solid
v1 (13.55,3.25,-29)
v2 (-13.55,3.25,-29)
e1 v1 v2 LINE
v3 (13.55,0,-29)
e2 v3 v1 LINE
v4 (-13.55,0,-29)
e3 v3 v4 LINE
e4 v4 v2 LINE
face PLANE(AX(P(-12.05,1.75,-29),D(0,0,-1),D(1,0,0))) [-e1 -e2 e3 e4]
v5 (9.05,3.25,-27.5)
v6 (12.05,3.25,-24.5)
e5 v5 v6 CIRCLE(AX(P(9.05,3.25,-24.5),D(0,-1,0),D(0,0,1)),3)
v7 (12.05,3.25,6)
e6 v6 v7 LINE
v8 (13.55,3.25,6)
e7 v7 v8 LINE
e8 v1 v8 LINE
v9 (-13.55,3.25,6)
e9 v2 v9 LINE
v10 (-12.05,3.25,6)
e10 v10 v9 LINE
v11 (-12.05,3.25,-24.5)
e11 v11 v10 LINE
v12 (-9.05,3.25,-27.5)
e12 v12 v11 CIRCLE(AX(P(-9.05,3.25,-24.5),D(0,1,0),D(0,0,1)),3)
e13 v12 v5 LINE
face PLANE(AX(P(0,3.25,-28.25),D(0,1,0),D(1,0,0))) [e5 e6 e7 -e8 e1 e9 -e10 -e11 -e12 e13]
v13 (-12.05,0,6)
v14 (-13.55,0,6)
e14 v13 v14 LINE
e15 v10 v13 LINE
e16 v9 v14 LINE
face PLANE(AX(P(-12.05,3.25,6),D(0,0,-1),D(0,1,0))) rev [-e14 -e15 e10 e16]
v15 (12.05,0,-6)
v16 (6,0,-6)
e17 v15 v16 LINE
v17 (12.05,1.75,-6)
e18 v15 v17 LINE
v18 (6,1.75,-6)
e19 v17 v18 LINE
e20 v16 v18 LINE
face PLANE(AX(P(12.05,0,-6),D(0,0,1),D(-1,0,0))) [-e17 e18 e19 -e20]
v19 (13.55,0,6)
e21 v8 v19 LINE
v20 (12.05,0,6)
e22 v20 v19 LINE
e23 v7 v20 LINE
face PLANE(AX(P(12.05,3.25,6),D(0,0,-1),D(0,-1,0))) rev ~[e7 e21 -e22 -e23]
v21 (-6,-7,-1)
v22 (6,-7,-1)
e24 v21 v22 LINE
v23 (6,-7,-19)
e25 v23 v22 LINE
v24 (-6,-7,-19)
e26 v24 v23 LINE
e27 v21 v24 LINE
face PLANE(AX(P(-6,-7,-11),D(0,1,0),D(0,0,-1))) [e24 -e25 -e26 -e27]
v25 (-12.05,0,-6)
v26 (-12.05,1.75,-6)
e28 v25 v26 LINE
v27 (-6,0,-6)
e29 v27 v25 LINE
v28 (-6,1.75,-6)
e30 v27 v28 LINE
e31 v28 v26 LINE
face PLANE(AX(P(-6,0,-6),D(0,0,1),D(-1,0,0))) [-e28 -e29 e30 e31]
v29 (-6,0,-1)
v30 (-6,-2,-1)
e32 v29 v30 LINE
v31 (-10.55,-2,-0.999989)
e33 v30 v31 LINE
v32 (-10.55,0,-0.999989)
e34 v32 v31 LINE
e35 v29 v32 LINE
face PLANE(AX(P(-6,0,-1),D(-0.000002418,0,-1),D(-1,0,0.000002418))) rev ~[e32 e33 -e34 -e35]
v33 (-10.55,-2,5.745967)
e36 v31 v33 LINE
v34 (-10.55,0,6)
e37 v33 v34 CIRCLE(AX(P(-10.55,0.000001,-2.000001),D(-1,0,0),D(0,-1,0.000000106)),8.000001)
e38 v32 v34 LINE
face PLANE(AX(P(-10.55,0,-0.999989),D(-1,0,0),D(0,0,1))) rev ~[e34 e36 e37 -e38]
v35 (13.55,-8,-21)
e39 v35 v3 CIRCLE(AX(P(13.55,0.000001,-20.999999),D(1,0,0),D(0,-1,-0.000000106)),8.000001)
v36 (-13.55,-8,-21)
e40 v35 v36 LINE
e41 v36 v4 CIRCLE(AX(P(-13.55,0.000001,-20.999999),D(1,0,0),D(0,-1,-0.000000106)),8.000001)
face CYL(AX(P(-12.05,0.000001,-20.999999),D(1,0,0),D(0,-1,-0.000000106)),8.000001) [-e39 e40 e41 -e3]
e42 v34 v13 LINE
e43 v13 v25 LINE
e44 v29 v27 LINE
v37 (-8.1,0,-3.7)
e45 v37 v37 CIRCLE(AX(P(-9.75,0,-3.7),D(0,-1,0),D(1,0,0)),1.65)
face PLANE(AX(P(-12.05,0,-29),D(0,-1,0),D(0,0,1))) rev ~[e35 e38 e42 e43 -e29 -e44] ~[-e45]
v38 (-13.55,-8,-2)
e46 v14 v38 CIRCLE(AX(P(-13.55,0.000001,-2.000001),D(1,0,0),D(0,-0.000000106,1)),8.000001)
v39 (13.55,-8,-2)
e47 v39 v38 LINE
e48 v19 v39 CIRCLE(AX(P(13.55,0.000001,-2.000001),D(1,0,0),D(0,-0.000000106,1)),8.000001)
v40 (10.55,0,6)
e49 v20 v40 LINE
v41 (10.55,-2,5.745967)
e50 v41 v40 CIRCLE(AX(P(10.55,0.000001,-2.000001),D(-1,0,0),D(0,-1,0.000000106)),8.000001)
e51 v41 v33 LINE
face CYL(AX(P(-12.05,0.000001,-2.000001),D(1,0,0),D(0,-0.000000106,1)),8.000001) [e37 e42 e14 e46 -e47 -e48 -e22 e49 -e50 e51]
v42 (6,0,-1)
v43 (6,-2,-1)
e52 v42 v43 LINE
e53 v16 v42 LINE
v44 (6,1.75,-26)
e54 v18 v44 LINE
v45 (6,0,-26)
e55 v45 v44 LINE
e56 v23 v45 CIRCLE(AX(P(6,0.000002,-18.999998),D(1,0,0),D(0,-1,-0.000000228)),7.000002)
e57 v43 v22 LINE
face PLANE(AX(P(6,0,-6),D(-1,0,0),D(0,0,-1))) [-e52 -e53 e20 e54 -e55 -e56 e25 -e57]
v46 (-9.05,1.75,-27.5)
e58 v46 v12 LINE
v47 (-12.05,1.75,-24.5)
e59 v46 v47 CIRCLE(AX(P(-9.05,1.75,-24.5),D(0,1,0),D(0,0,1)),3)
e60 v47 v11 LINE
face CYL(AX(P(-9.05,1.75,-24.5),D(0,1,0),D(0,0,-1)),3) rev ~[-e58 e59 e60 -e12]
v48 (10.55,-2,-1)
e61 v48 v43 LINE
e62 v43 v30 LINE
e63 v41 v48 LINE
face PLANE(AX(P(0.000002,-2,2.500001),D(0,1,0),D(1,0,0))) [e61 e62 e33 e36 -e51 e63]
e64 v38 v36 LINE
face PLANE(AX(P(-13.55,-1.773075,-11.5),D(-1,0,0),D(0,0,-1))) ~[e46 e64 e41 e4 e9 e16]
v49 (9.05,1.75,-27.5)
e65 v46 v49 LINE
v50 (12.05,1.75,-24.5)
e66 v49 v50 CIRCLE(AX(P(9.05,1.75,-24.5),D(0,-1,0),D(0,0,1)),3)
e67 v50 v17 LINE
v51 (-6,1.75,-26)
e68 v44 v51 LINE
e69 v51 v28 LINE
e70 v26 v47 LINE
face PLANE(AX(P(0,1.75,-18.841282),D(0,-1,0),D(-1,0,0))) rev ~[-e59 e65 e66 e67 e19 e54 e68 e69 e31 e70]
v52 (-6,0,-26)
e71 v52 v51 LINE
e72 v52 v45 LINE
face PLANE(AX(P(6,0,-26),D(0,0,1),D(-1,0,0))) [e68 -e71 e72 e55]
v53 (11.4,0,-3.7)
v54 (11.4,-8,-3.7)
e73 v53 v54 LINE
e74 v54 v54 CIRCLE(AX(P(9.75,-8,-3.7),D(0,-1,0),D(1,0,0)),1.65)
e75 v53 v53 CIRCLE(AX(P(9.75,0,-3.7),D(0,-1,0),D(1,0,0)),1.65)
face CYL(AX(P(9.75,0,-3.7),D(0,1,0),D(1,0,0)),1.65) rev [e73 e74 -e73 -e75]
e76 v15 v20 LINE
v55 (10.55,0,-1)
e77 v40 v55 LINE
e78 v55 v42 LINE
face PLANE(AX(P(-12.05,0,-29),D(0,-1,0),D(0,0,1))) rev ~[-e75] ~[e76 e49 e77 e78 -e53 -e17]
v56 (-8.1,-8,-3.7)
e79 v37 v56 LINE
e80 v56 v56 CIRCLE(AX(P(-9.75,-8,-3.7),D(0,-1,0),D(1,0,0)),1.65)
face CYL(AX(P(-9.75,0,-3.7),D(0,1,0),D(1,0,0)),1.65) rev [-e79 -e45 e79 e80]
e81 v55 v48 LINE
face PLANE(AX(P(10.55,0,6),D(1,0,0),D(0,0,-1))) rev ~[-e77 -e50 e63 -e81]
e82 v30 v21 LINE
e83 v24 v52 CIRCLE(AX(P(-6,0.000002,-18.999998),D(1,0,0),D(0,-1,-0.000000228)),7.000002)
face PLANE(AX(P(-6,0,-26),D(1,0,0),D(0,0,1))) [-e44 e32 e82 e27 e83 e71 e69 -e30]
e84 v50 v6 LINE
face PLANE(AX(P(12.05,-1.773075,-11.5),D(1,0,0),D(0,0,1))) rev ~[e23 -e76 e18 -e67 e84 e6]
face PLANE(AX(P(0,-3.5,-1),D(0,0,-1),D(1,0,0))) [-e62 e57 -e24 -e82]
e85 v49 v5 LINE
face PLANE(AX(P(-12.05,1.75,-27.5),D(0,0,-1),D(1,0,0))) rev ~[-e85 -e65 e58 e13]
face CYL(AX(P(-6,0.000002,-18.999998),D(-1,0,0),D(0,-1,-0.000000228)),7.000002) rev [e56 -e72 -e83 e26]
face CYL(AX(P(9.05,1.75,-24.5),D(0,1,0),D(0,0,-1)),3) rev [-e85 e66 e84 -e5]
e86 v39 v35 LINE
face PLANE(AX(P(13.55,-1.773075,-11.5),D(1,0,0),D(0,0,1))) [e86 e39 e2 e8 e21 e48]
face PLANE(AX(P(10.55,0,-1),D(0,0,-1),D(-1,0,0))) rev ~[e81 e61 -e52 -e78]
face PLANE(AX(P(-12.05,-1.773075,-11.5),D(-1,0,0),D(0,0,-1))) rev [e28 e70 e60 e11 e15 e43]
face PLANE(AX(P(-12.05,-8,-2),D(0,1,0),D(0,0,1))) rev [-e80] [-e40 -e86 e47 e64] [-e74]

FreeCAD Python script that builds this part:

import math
import FreeCAD as App
import Part
import Sketcher
from FreeCAD import Vector


def edges_at(feature, points):
    """Names of the edges that pass closest to the given points."""
    edges = feature.Shape.Edges
    near = lambda p: min(range(len(edges)), key=lambda i: edges[i].distToShape(Part.Vertex(*p))[0])
    return sorted({f"Edge{near(p) + 1}" for p in points})

doc = App.newDocument("Part")
body = doc.addObject("PartDesign::Body", "Body")

# Sketch on XZ plane
sketch1 = body.newObject("Sketcher::SketchObject", "Sketch")
sketch1.AttachmentSupport = (doc.getObject("XZ_Plane"), [""])
sketch1.MapMode = "FlatFace"
sketch1.addGeometry([
    Part.LineSegment(Vector(-12.1, 6, 0), Vector(-12.1, -11, 0)),  # 0
    Part.LineSegment(Vector(-12.1, -11, 0), Vector(12.1, -11, 0)),  # 1
    Part.LineSegment(Vector(12.1, -11, 0), Vector(12.1, 6, 0)),  # 2
    Part.LineSegment(Vector(12.1, 6, 0), Vector(-12.1, 6, 0)),  # 3
    Part.Circle(Vector(-9.8, -3.7, 0), Vector(0, 0, 1), 1.6),  # 4
    Part.Circle(Vector(9.8, -3.7, 0), Vector(0, 0, 1), 1.6),  # 5
], False)
sketch1.addConstraint([
    Sketcher.Constraint("Coincident", 0, 2, 1, 1),
    Sketcher.Constraint("Coincident", 1, 2, 2, 1),
    Sketcher.Constraint("Coincident", 2, 2, 3, 1),
    Sketcher.Constraint("Coincident", 3, 2, 0, 1),
    Sketcher.Constraint("Vertical", 0),
    Sketcher.Constraint("Horizontal", 1),
    Sketcher.Constraint("Vertical", 2),
    Sketcher.Constraint("Horizontal", 3),
    Sketcher.Constraint("Equal", 4, 5),
    Sketcher.Constraint("Symmetric", 4, 3, 5, 3, -2),
    Sketcher.Constraint("Diameter", 4, 3.3),
    Sketcher.Constraint("DistanceY", 0, 2, 0, 1, 17.0),
    Sketcher.Constraint("DistanceX", 1, 1, 1, 2, 24.1),
    Sketcher.Constraint("DistanceY", 0, 2, -1, 1, 11.0),
    Sketcher.Constraint("DistanceY", 4, 3, -1, 1, 3.7),
    Sketcher.Constraint("DistanceX", 4, 3, 5, 3, 19.5),
    Sketcher.Constraint("DistanceX", 0, 2, 4, 3, 2.3),
])
pad1 = body.newObject("PartDesign::Pad", "Pad")
pad1.Profile = sketch1
pad1.Length = 8

# Sketch on XY plane
sketch2 = body.newObject("Sketcher::SketchObject", "Sketch001")
sketch2.AttachmentSupport = (doc.getObject("XY_Plane"), [""])
sketch2.MapMode = "FlatFace"
sketch2.AttachmentOffset = App.Placement(Vector(0, 0, -11), App.Rotation())
sketch2.addGeometry([
    Part.LineSegment(Vector(-6, -7, 0), Vector(-6, 0, 0)),
    Part.LineSegment(Vector(-6, 0, 0), Vector(6, 0, 0)),
    Part.LineSegment(Vector(6, 0, 0), Vector(6, -7, 0)),
    Part.LineSegment(Vector(6, -7, 0), Vector(-6, -7, 0)),
], False)
sketch2.addConstraint([
    Sketcher.Constraint("Coincident", 0, 2, 1, 1),
    Sketcher.Constraint("Coincident", 1, 2, 2, 1),
    Sketcher.Constraint("Coincident", 2, 2, 3, 1),
    Sketcher.Constraint("Coincident", 3, 2, 0, 1),
    Sketcher.Constraint("Vertical", 0),
    Sketcher.Constraint("Horizontal", 1),
    Sketcher.Constraint("Vertical", 2),
    Sketcher.Constraint("Horizontal", 3),
    Sketcher.Constraint("Symmetric", 0, 2, 1, 2, -1, 1),
    Sketcher.Constraint("DistanceX", 1, 1, 1, 2, 12.0),
    Sketcher.Constraint("DistanceY", 0, 1, 0, 2, 7.0),
])
pocket1 = body.newObject("PartDesign::Pocket", "Pocket")
pocket1.Profile = sketch2
pocket1.Length = 10
pocket1.Reversed = True

# Sketch on YZ plane
sketch3 = body.newObject("Sketcher::SketchObject", "Sketch002")
sketch3.AttachmentSupport = (doc.getObject("YZ_Plane"), [""])
sketch3.MapMode = "FlatFace"
sketch3.AttachmentOffset = App.Placement(Vector(0, 0, -12.05), App.Rotation())
sketch3.addGeometry([
    Part.ArcOfCircle(Part.Circle(Vector(0, -2, 0), Vector(0, 0, 1), 8), math.radians(90), math.radians(180)),
    Part.LineSegment(Vector(-8, -2, 0), Vector(-8, 6, 0)),
    Part.LineSegment(Vector(-8, 6, 0), Vector(0, 6, 0)),
], False)
sketch3.addConstraint([
    Sketcher.Constraint("Tangent", 0, 2, 1, 1),
    Sketcher.Constraint("Coincident", 1, 2, 2, 1),
    Sketcher.Constraint("Tangent", 2, 2, 0, 1),
    Sketcher.Constraint("Vertical", 1),
    Sketcher.Constraint("Horizontal", 2),
    Sketcher.Constraint("PointOnObject", 0, 3, -2),
    Sketcher.Constraint("Radius", 0, 8.000001),
    Sketcher.Constraint("DistanceY", 0, 3, -1, 1, 2.000001),
])
pocket2 = body.newObject("PartDesign::Pocket", "Pocket001")
pocket2.Profile = sketch3
pocket2.Type = "ThroughAll"
pocket2.Reversed = True

# Sketch on YZ plane
sketch4 = body.newObject("Sketcher::SketchObject", "Sketch003")
sketch4.AttachmentSupport = (doc.getObject("YZ_Plane"), [""])
sketch4.MapMode = "FlatFace"
sketch4.AttachmentOffset = App.Placement(Vector(0, 0, -12.05), App.Rotation())
sketch4.addGeometry([
    Part.LineSegment(Vector(-8, -21, 0), Vector(-8, -11, 0)),
    Part.LineSegment(Vector(-8, -11, 0), Vector(0, -11, 0)),
    Part.LineSegment(Vector(0, -11, 0), Vector(0, -29, 0)),
    Part.ArcOfCircle(Part.Circle(Vector(0, -21, 0), Vector(0, 0, 1), 8), math.radians(-180), math.radians(-90)),
], False)
sketch4.addConstraint([
    Sketcher.Constraint("Coincident", 0, 2, 1, 1),
    Sketcher.Constraint("Coincident", 1, 2, 2, 1),
    Sketcher.Constraint("Coincident", 2, 2, 3, 2),
    Sketcher.Constraint("Tangent", 3, 1, 0, 1),
    Sketcher.Constraint("Vertical", 0),
    Sketcher.Constraint("Horizontal", 1),
    Sketcher.Constraint("Vertical", 2),
    Sketcher.Constraint("PointOnObject", 3, 3, -2),
    Sketcher.Constraint("PointOnObject", 1, 2, -2),
    Sketcher.Constraint("Radius", 3, 8.000001),
    Sketcher.Constraint("DistanceY", 0, 1, 0, 2, 10.0),
    Sketcher.Constraint("DistanceY", 3, 3, -1, 1, 20.999999),
])
pad2 = body.newObject("PartDesign::Pad", "Pad001")
pad2.Profile = sketch4
pad2.Length = 24.1

# Sketch on YZ plane
sketch5 = body.newObject("Sketcher::SketchObject", "Sketch004")
sketch5.AttachmentSupport = (doc.getObject("YZ_Plane"), [""])
sketch5.MapMode = "FlatFace"
sketch5.AttachmentOffset = App.Placement(Vector(0, 0, -6), App.Rotation())
sketch5.addGeometry([
    Part.LineSegment(Vector(-7, -11, 0), Vector(-7, -19, 0)),
    Part.ArcOfCircle(Part.Circle(Vector(0, -19, 0), Vector(0, 0, 1), 7), math.radians(-180), math.radians(-90)),
    Part.LineSegment(Vector(0, -26, 0), Vector(0, -11, 0)),
    Part.LineSegment(Vector(0, -11, 0), Vector(-7, -11, 0)),
], False)
sketch5.addConstraint([
    Sketcher.Constraint("Tangent", 0, 2, 1, 1),
    Sketcher.Constraint("Coincident", 1, 2, 2, 1),
    Sketcher.Constraint("Coincident", 2, 2, 3, 1),
    Sketcher.Constraint("Coincident", 3, 2, 0, 1),
    Sketcher.Constraint("Vertical", 0),
    Sketcher.Constraint("Vertical", 2),
    Sketcher.Constraint("Horizontal", 3),
    Sketcher.Constraint("PointOnObject", 1, 3, -2),
    Sketcher.Constraint("PointOnObject", 1, 2, -2),
    Sketcher.Constraint("Radius", 1, 7.000002),
    Sketcher.Constraint("DistanceY", 0, 2, 0, 1, 8.0),
    Sketcher.Constraint("DistanceY", 1, 3, -1, 1, 18.999998),
])
pocket3 = body.newObject("PartDesign::Pocket", "Pocket002")
pocket3.Profile = sketch5
pocket3.Length = 12
pocket3.Reversed = True

# Sketch on XZ plane
sketch6 = body.newObject("Sketcher::SketchObject", "Sketch005")
sketch6.AttachmentSupport = (doc.getObject("XZ_Plane"), [""])
sketch6.MapMode = "FlatFace"
sketch6.addGeometry([
    Part.LineSegment(Vector(-12, -29, 0), Vector(-12, -6, 0)),  # 0
    Part.LineSegment(Vector(-12, -6, 0), Vector(-6, -6, 0)),  # 1
    Part.LineSegment(Vector(-6, -6, 0), Vector(-6, -26, 0)),  # 2
    Part.LineSegment(Vector(-6, -26, 0), Vector(6, -26, 0)),  # 3
    Part.LineSegment(Vector(6, -26, 0), Vector(6, -6, 0)),  # 4
    Part.LineSegment(Vector(6, -6, 0), Vector(12, -6, 0)),  # 5
    Part.LineSegment(Vector(12, -6, 0), Vector(12, -29, 0)),  # 6
    Part.LineSegment(Vector(12, -29, 0), Vector(-12, -29, 0)),  # 7
], False)
sketch6.addConstraint([
    Sketcher.Constraint("Coincident", 0, 2, 1, 1),
    Sketcher.Constraint("Coincident", 1, 2, 2, 1),
    Sketcher.Constraint("Coincident", 2, 2, 3, 1),
    Sketcher.Constraint("Coincident", 3, 2, 4, 1),
    Sketcher.Constraint("Coincident", 4, 2, 5, 1),
    Sketcher.Constraint("Coincident", 5, 2, 6, 1),
    Sketcher.Constraint("Coincident", 6, 2, 7, 1),
    Sketcher.Constraint("Coincident", 7, 2, 0, 1),
    Sketcher.Constraint("Vertical", 0),
    Sketcher.Constraint("Horizontal", 1),
    Sketcher.Constraint("Vertical", 2),
    Sketcher.Constraint("Horizontal", 3),
    Sketcher.Constraint("Vertical", 4),
    Sketcher.Constraint("Horizontal", 5),
    Sketcher.Constraint("Vertical", 6),
    Sketcher.Constraint("Horizontal", 7),
    Sketcher.Constraint("Symmetric", 1, 2, 4, 2, -2),
    Sketcher.Constraint("Equal", 1, 5),
    Sketcher.Constraint("DistanceX", 3, 1, 3, 2, 12.0),
    Sketcher.Constraint("DistanceY", 0, 1, 0, 2, 23.0),
    Sketcher.Constraint("DistanceY", 2, 2, 2, 1, 20.0),
    Sketcher.Constraint("DistanceX", 7, 2, 7, 1, 24.1),
    Sketcher.Constraint("DistanceY", 0, 2, -1, 1, 6.0),
])
pad3 = body.newObject("PartDesign::Pad", "Pad002")
pad3.Profile = sketch6
pad3.Length = 1.75
pad3.Reversed = True

# Sketch on XZ plane
sketch7 = body.newObject("Sketcher::SketchObject", "Sketch006")
sketch7.AttachmentSupport = (doc.getObject("XZ_Plane"), [""])
sketch7.MapMode = "FlatFace"
sketch7.addGeometry([
    Part.LineSegment(Vector(-6, -1, 0), Vector(-10.6, -1, 0)),  # 0
    Part.LineSegment(Vector(-10.6, -1, 0), Vector(-10.6, 6, 0)),  # 1
    Part.LineSegment(Vector(-10.6, 6, 0), Vector(10.6, 6, 0)),  # 2
    Part.LineSegment(Vector(10.6, 6, 0), Vector(10.6, -1, 0)),  # 3
    Part.LineSegment(Vector(10.6, -1, 0), Vector(-6, -1, 0)),  # 4
], False)
sketch7.addConstraint([
    Sketcher.Constraint("Coincident", 0, 2, 1, 1),
    Sketcher.Constraint("Coincident", 1, 2, 2, 1),
    Sketcher.Constraint("Coincident", 2, 2, 3, 1),
    Sketcher.Constraint("Coincident", 3, 2, 4, 1),
    Sketcher.Constraint("Coincident", 4, 2, 0, 1),
    Sketcher.Constraint("Vertical", 1),
    Sketcher.Constraint("Horizontal", 2),
    Sketcher.Constraint("Vertical", 3),
    Sketcher.Constraint("Horizontal", 4),
    Sketcher.Constraint("DistanceY", 3, 2, 3, 1, 7.0),
    Sketcher.Constraint("DistanceX", 2, 1, 2, 2, 21.1),
    Sketcher.Constraint("DistanceY", -1, 1, 1, 2, 6.0),
    Sketcher.Constraint("DistanceX", 4, 2, -1, 1, 6.0),
    Sketcher.Constraint("DistanceX", 4, 2, 4, 1, 16.55),
    Sketcher.Constraint("DistanceY", 1, 1, 1, 2, 6.999989),
])
pocket4 = body.newObject("PartDesign::Pocket", "Pocket003")
pocket4.Profile = sketch7
pocket4.Length = 2
pocket4.Reversed = True

# Sketch on YZ plane
sketch8 = body.newObject("Sketcher::SketchObject", "Sketch007")
sketch8.AttachmentSupport = (doc.getObject("YZ_Plane"), [""])
sketch8.MapMode = "FlatFace"
sketch8.AttachmentOffset = App.Placement(Vector(0, 0, 12.05), App.Rotation())
sketch8.addGeometry([
    Part.LineSegment(Vector(0, -29, 0), Vector(3.2, -29, 0)),  # 0
    Part.LineSegment(Vector(3.2, -29, 0), Vector(3.2, 6, 0)),  # 1
    Part.LineSegment(Vector(3.2, 6, 0), Vector(0, 6, 0)),  # 2
    Part.ArcOfCircle(Part.Circle(Vector(0, -2, 0), Vector(0, 0, 1), 8), math.radians(90), math.radians(180)),  # 3
    Part.LineSegment(Vector(-8, -2, 0), Vector(-8, -21, 0)),  # 4
    Part.ArcOfCircle(Part.Circle(Vector(0, -21, 0), Vector(0, 0, 1), 8), math.radians(-180), math.radians(-90)),  # 5
], False)
sketch8.addConstraint([
    Sketcher.Constraint("Coincident", 0, 2, 1, 1),
    Sketcher.Constraint("Coincident", 1, 2, 2, 1),
    Sketcher.Constraint("Tangent", 2, 2, 3, 1),
    Sketcher.Constraint("Tangent", 3, 2, 4, 1),
    Sketcher.Constraint("Tangent", 4, 2, 5, 1),
    Sketcher.Constraint("Tangent", 5, 2, 0, 1),
    Sketcher.Constraint("Horizontal", 0),
    Sketcher.Constraint("Vertical", 1),
    Sketcher.Constraint("Horizontal", 2),
    Sketcher.Constraint("Vertical", 4),
    Sketcher.Constraint("Equal", 3, 5),
    Sketcher.Constraint("PointOnObject", 3, 3, -2),
    Sketcher.Constraint("Radius", 3, 8.000001),
    Sketcher.Constraint("DistanceY", 1, 1, 1, 2, 35.0),
    Sketcher.Constraint("DistanceY", 3, 3, -1, 1, 2.000001),
    Sketcher.Constraint("DistanceX", 0, 1, 0, 2, 3.25),
])
pad4 = body.newObject("PartDesign::Pad", "Pad003")
pad4.Profile = sketch8
pad4.Length = 1.5
doc.recompute()

mirrored = body.newObject("PartDesign::Mirrored", "Mirrored")
mirrored.Originals = [pad4]
mirrored.MirrorPlane = (doc.getObject("YZ_Plane"), [""])
body.Tip = mirrored

# Sketch on XZ plane
sketch9 = body.newObject("Sketcher::SketchObject", "Sketch008")
sketch9.AttachmentSupport = (doc.getObject("XZ_Plane"), [""])
sketch9.MapMode = "FlatFace"
sketch9.AttachmentOffset = App.Placement(Vector(0, 0, -1.75), App.Rotation())
sketch9.addGeometry([
    Part.LineSegment(Vector(-12.1, -29, 0), Vector(-12.1, -27.5, 0)),
    Part.LineSegment(Vector(-12.1, -27.5, 0), Vector(12.1, -27.5, 0)),
    Part.LineSegment(Vector(12.1, -27.5, 0), Vector(12.1, -29, 0)),
    Part.LineSegment(Vector(12.1, -29, 0), Vector(-12.1, -29, 0)),
], False)
sketch9.addConstraint([
    Sketcher.Constraint("Coincident", 0, 2, 1, 1),
    Sketcher.Constraint("Coincident", 1, 2, 2, 1),
    Sketcher.Constraint("Coincident", 2, 2, 3, 1),
    Sketcher.Constraint("Coincident", 3, 2, 0, 1),
    Sketcher.Constraint("Vertical", 0),
    Sketcher.Constraint("Horizontal", 1),
    Sketcher.Constraint("Vertical", 2),
    Sketcher.Constraint("Horizontal", 3),
    Sketcher.Constraint("DistanceX", 1, 1, 1, 2, 24.1),
    Sketcher.Constraint("DistanceY", 0, 1, 0, 2, 1.5),
    Sketcher.Constraint("DistanceY", 2, 2, -1, 1, 29.0),
    Sketcher.Constraint("DistanceX", 0, 2, -1, 1, 12.05),
])
pad5 = body.newObject("PartDesign::Pad", "Pad004")
pad5.Profile = sketch9
pad5.Length = 1.5
pad5.Reversed = True
doc.recompute()

fillet = body.newObject("PartDesign::Fillet", "Fillet")
fillet.Base = (pad5, edges_at(pad5, [(-12.05, 2.5, -27.5), (12.05, 2.5, -27.5)]))
fillet.Radius = 3

doc.recompute()
